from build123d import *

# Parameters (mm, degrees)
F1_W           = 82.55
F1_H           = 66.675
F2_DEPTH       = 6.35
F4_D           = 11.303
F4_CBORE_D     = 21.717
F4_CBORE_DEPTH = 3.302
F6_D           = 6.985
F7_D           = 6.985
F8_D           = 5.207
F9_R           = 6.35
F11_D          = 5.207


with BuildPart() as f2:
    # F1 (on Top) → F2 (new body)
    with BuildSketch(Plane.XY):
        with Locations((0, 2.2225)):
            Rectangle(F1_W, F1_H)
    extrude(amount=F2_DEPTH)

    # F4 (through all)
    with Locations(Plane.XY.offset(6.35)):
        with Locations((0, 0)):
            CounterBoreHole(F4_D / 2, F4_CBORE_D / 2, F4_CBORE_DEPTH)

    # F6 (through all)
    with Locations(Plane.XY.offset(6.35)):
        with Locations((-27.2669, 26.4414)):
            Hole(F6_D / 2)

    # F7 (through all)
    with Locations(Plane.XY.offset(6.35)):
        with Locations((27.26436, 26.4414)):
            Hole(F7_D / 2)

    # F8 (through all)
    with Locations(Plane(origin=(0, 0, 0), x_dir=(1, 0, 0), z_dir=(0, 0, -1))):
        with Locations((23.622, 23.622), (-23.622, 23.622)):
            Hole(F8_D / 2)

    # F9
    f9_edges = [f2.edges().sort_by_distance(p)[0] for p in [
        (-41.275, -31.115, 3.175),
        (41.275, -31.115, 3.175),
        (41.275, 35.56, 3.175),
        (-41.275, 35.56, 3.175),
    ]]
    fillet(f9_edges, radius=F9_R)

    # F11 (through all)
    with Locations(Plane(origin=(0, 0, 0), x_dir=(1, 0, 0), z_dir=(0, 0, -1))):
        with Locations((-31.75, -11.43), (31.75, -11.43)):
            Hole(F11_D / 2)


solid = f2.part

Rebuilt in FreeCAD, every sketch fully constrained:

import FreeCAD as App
import Part
import Sketcher

V = App.Vector
Q = App.Units.Quantity


def edges_at(feature, points):
    """Names of the edges that pass closest to the given points."""
    edges = feature.Shape.Edges
    near = lambda p: min(range(len(edges)), key=lambda i: edges[i].distToShape(Part.Vertex(*p))[0])
    return sorted({f"Edge{near(p) + 1}" for p in points})


def add_polygon(sketch, points):
    """Adds a closed chain of lines whose ends are joined by coincident constraints."""
    first, n = sketch.GeometryCount, len(points)
    for a, b in zip(points, points[1:] + points[:1]):
        sketch.addGeometry(Part.LineSegment(App.Vector(*a, 0), App.Vector(*b, 0)), False)
    for i in range(n):
        sketch.addConstraint(Sketcher.Constraint("Coincident", first + i, 2, first + (i + 1) % n, 1))

doc = App.newDocument("Part")
body = doc.addObject("PartDesign::Body", "Body")

sketch1 = body.newObject("Sketcher::SketchObject", "Sketch")
sketch1.AttachmentSupport = (doc.getObject("XY_Plane"), [""])
sketch1.MapMode = "FlatFace"
add_polygon(sketch1, [(-41, 36), (-41, -31), (41, -31), (41, 36)])
sketch1.addConstraint([
    Sketcher.Constraint("Vertical", 0),
    Sketcher.Constraint("Horizontal", 1),
    Sketcher.Constraint("Vertical", 2),
    Sketcher.Constraint("Horizontal", 3),
    Sketcher.Constraint("DistanceX", 1, 1, 1, 2, Q("3.25 in")),
    Sketcher.Constraint("DistanceY", -1, 1, 2, 2, Q("1.4 in")),
    Sketcher.Constraint("DistanceY", 0, 2, 0, 1, Q("2.625 in")),
    Sketcher.Constraint("DistanceX", 0, 2, -1, 1, Q("1.625 in")),
])
pad1 = body.newObject("PartDesign::Pad", "Pad")
pad1.Profile = sketch1
pad1.Length = Q("0.25 in")

sketch2 = body.newObject("Sketcher::SketchObject", "Sketch001")
sketch2.AttachmentSupport = (doc.getObject("XY_Plane"), [""])
sketch2.MapMode = "FlatFace"
sketch2.AttachmentOffset = App.Placement(V(0, 0, 0.25 * 25.4), App.Rotation())
sketch2.addGeometry(Part.Circle(V(0, 0, 0), V(0, 0, 1), 6), False)
sketch2.addConstraint([
    Sketcher.Constraint("Coincident", 0, 3, -1, 1),
    Sketcher.Constraint("Diameter", 0, Q("0.445 in")),
])
doc.recompute()
hole = body.newObject("PartDesign::Hole", "Hole")
hole.Profile = sketch2
hole.ThreadType = "None"
hole.Diameter = Q("0.445 in")
hole.DepthType = "ThroughAll"
hole.HoleCutType = "Counterbore"
hole.HoleCutDiameter = Q("0.855 in")
hole.HoleCutDepth = Q("0.13 in")

sketch3 = body.newObject("Sketcher::SketchObject", "Sketch002")
sketch3.AttachmentSupport = (doc.getObject("XY_Plane"), [""])
sketch3.MapMode = "FlatFace"
sketch3.AttachmentOffset = App.Placement(V(0, 0, 0.25 * 25.4), App.Rotation())
sketch3.addGeometry(Part.Circle(V(-27.3, 26.4, 0), V(0, 0, 1), 3.5), False)
sketch3.addConstraint([
    Sketcher.Constraint("Diameter", 0, Q("0.275 in")),
    Sketcher.Constraint("DistanceY", -1, 1, 0, 3, Q("1.041 in")),
    Sketcher.Constraint("DistanceX", 0, 3, -1, 1, Q("1.0735 in")),
])
doc.recompute()
hole2 = body.newObject("PartDesign::Hole", "Hole001")
hole2.Profile = sketch3
hole2.ThreadType = "None"
hole2.Diameter = Q("0.275 in")
hole2.DepthType = "ThroughAll"

sketch4 = body.newObject("Sketcher::SketchObject", "Sketch003")
sketch4.AttachmentSupport = (doc.getObject("XY_Plane"), [""])
sketch4.MapMode = "FlatFace"
sketch4.AttachmentOffset = App.Placement(V(0, 0, 0.25 * 25.4), App.Rotation())
sketch4.addGeometry(Part.Circle(V(27.3, 26.4, 0), V(0, 0, 1), 3.5), False)
sketch4.addConstraint([
    Sketcher.Constraint("Diameter", 0, Q("0.275 in")),
    Sketcher.Constraint("DistanceY", -1, 1, 0, 3, Q("1.041 in")),
    Sketcher.Constraint("DistanceX", -1, 1, 0, 3, Q("1.0734 in")),
])
doc.recompute()
hole3 = body.newObject("PartDesign::Hole", "Hole002")
hole3.Profile = sketch4
hole3.ThreadType = "None"
hole3.Diameter = Q("0.275 in")
hole3.DepthType = "ThroughAll"

sketch5 = body.newObject("Sketcher::SketchObject", "Sketch004")
sketch5.AttachmentSupport = (doc.getObject("XY_Plane"), [""])
sketch5.MapMode = "FlatFace"
sketch5.addGeometry([
    Part.Circle(V(23.6, -23.6, 0), V(0, 0, 1), 2.6),
    Part.Circle(V(-23.6, -23.6, 0), V(0, 0, 1), 2.6),
], False)
sketch5.addConstraint([
    Sketcher.Constraint("Equal", 0, 1),
    Sketcher.Constraint("Symmetric", 0, 3, 1, 3, -2),
    Sketcher.Constraint("Diameter", 0, Q("0.205 in")),
    Sketcher.Constraint("DistanceX", -1, 1, 0, 3, Q("0.93 in")),
    Sketcher.Constraint("DistanceY", 0, 3, -1, 1, Q("0.93 in")),
])
doc.recompute()
hole4 = body.newObject("PartDesign::Hole", "Hole003")
hole4.Profile = sketch5
hole4.ThreadType = "None"
hole4.Diameter = Q("0.205 in")
hole4.DepthType = "ThroughAll"
hole4.Reversed = True
doc.recompute()

fillet = body.newObject("PartDesign::Fillet", "Fillet")
fillet.Base = (hole4, edges_at(hole4, [
    (-41.275, -31.115, 3.175),
    (41.275, -31.115, 3.175),
    (41.275, 35.56, 3.175),
    (-41.275, 35.56, 3.175),
]))
fillet.Radius = Q("0.25 in")

sketch6 = body.newObject("Sketcher::SketchObject", "Sketch005")
sketch6.AttachmentSupport = (doc.getObject("XY_Plane"), [""])
sketch6.MapMode = "FlatFace"
sketch6.addGeometry([
    Part.Circle(V(-31.8, 11.4, 0), V(0, 0, 1), 2.6),
    Part.Circle(V(31.8, 11.4, 0), V(0, 0, 1), 2.6),
], False)
sketch6.addConstraint([
    Sketcher.Constraint("Equal", 0, 1),
    Sketcher.Constraint("Symmetric", 0, 3, 1, 3, -2),
    Sketcher.Constraint("Diameter", 0, Q("0.205 in")),
    Sketcher.Constraint("DistanceX", 0, 3, 1, 3, Q("2.5 in")),
    Sketcher.Constraint("DistanceY", -1, 1, 0, 3, Q("0.45 in")),
])
doc.recompute()
hole5 = body.newObject("PartDesign::Hole", "Hole004")
hole5.Profile = sketch6
hole5.ThreadType = "None"
hole5.Diameter = Q("0.205 in")
hole5.DepthType = "ThroughAll"
hole5.Reversed = True

doc.recompute()
